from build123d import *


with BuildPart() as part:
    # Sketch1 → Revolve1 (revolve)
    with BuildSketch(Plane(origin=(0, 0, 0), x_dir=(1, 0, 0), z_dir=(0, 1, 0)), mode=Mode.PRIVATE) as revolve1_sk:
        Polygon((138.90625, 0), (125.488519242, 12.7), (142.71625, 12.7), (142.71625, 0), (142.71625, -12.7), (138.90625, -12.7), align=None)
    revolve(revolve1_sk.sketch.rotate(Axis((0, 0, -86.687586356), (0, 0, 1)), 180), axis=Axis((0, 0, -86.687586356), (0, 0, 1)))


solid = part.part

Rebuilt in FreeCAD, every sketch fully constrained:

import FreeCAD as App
import Part
import Sketcher

V = App.Vector
Q = App.Units.Quantity

doc = App.newDocument("Part")
body = doc.addObject("PartDesign::Body", "Body")

# Sketch on XZ plane
sketch1 = body.newObject("Sketcher::SketchObject", "Sketch")
sketch1.AttachmentSupport = (doc.getObject("XZ_Plane"), [""])
sketch1.MapMode = "FlatFace"
sketch1.addGeometry([
    Part.LineSegment(V(125.488519, -12.7, 0), V(138.90625, 0, 0)),  # 0
    Part.LineSegment(V(138.90625, 0, 0), V(138.90625, 12.7, 0)),  # 1
    Part.LineSegment(V(138.90625, 12.7, 0), V(142.71625, 12.7, 0)),  # 2
    Part.LineSegment(V(142.71625, 12.7, 0), V(142.71625, -12.7, 0)),  # 3
    Part.LineSegment(V(142.71625, -12.7, 0), V(125.488519, -12.7, 0)),  # 4
], False)
sketch1.addConstraint([
    Sketcher.Constraint("Coincident", 0, 2, 1, 1),
    Sketcher.Constraint("Coincident", 1, 2, 2, 1),
    Sketcher.Constraint("Coincident", 2, 2, 3, 1),
    Sketcher.Constraint("Coincident", 3, 2, 4, 1),
    Sketcher.Constraint("Coincident", 4, 2, 0, 1),
    Sketcher.Constraint("Vertical", 1),
    Sketcher.Constraint("Horizontal", 2),
    Sketcher.Constraint("Vertical", 3),
    Sketcher.Constraint("Horizontal", 4),
    Sketcher.Constraint("PointOnObject", 0, 2, -1),
    Sketcher.Constraint("DistanceY", 3, 2, 3, 1, Q("1 in")),
    Sketcher.Constraint("DistanceY", 1, 1, 1, 2, Q("0.5 in")),
    Sketcher.Constraint("DistanceX", 2, 1, 2, 2, Q("0.15 in")),
    Sketcher.Constraint("DistanceX", -1, 1, 0, 2, Q("5.46875 in")),
    Sketcher.Constraint("DistanceX", 4, 2, 4, 1, 17.227731),
])
revolution = body.newObject("PartDesign::Revolution", "Revolution")
revolution.Profile = sketch1
revolution.ReferenceAxis = (sketch1, ["V_Axis"])
revolution.Angle = 360

doc.recompute()
